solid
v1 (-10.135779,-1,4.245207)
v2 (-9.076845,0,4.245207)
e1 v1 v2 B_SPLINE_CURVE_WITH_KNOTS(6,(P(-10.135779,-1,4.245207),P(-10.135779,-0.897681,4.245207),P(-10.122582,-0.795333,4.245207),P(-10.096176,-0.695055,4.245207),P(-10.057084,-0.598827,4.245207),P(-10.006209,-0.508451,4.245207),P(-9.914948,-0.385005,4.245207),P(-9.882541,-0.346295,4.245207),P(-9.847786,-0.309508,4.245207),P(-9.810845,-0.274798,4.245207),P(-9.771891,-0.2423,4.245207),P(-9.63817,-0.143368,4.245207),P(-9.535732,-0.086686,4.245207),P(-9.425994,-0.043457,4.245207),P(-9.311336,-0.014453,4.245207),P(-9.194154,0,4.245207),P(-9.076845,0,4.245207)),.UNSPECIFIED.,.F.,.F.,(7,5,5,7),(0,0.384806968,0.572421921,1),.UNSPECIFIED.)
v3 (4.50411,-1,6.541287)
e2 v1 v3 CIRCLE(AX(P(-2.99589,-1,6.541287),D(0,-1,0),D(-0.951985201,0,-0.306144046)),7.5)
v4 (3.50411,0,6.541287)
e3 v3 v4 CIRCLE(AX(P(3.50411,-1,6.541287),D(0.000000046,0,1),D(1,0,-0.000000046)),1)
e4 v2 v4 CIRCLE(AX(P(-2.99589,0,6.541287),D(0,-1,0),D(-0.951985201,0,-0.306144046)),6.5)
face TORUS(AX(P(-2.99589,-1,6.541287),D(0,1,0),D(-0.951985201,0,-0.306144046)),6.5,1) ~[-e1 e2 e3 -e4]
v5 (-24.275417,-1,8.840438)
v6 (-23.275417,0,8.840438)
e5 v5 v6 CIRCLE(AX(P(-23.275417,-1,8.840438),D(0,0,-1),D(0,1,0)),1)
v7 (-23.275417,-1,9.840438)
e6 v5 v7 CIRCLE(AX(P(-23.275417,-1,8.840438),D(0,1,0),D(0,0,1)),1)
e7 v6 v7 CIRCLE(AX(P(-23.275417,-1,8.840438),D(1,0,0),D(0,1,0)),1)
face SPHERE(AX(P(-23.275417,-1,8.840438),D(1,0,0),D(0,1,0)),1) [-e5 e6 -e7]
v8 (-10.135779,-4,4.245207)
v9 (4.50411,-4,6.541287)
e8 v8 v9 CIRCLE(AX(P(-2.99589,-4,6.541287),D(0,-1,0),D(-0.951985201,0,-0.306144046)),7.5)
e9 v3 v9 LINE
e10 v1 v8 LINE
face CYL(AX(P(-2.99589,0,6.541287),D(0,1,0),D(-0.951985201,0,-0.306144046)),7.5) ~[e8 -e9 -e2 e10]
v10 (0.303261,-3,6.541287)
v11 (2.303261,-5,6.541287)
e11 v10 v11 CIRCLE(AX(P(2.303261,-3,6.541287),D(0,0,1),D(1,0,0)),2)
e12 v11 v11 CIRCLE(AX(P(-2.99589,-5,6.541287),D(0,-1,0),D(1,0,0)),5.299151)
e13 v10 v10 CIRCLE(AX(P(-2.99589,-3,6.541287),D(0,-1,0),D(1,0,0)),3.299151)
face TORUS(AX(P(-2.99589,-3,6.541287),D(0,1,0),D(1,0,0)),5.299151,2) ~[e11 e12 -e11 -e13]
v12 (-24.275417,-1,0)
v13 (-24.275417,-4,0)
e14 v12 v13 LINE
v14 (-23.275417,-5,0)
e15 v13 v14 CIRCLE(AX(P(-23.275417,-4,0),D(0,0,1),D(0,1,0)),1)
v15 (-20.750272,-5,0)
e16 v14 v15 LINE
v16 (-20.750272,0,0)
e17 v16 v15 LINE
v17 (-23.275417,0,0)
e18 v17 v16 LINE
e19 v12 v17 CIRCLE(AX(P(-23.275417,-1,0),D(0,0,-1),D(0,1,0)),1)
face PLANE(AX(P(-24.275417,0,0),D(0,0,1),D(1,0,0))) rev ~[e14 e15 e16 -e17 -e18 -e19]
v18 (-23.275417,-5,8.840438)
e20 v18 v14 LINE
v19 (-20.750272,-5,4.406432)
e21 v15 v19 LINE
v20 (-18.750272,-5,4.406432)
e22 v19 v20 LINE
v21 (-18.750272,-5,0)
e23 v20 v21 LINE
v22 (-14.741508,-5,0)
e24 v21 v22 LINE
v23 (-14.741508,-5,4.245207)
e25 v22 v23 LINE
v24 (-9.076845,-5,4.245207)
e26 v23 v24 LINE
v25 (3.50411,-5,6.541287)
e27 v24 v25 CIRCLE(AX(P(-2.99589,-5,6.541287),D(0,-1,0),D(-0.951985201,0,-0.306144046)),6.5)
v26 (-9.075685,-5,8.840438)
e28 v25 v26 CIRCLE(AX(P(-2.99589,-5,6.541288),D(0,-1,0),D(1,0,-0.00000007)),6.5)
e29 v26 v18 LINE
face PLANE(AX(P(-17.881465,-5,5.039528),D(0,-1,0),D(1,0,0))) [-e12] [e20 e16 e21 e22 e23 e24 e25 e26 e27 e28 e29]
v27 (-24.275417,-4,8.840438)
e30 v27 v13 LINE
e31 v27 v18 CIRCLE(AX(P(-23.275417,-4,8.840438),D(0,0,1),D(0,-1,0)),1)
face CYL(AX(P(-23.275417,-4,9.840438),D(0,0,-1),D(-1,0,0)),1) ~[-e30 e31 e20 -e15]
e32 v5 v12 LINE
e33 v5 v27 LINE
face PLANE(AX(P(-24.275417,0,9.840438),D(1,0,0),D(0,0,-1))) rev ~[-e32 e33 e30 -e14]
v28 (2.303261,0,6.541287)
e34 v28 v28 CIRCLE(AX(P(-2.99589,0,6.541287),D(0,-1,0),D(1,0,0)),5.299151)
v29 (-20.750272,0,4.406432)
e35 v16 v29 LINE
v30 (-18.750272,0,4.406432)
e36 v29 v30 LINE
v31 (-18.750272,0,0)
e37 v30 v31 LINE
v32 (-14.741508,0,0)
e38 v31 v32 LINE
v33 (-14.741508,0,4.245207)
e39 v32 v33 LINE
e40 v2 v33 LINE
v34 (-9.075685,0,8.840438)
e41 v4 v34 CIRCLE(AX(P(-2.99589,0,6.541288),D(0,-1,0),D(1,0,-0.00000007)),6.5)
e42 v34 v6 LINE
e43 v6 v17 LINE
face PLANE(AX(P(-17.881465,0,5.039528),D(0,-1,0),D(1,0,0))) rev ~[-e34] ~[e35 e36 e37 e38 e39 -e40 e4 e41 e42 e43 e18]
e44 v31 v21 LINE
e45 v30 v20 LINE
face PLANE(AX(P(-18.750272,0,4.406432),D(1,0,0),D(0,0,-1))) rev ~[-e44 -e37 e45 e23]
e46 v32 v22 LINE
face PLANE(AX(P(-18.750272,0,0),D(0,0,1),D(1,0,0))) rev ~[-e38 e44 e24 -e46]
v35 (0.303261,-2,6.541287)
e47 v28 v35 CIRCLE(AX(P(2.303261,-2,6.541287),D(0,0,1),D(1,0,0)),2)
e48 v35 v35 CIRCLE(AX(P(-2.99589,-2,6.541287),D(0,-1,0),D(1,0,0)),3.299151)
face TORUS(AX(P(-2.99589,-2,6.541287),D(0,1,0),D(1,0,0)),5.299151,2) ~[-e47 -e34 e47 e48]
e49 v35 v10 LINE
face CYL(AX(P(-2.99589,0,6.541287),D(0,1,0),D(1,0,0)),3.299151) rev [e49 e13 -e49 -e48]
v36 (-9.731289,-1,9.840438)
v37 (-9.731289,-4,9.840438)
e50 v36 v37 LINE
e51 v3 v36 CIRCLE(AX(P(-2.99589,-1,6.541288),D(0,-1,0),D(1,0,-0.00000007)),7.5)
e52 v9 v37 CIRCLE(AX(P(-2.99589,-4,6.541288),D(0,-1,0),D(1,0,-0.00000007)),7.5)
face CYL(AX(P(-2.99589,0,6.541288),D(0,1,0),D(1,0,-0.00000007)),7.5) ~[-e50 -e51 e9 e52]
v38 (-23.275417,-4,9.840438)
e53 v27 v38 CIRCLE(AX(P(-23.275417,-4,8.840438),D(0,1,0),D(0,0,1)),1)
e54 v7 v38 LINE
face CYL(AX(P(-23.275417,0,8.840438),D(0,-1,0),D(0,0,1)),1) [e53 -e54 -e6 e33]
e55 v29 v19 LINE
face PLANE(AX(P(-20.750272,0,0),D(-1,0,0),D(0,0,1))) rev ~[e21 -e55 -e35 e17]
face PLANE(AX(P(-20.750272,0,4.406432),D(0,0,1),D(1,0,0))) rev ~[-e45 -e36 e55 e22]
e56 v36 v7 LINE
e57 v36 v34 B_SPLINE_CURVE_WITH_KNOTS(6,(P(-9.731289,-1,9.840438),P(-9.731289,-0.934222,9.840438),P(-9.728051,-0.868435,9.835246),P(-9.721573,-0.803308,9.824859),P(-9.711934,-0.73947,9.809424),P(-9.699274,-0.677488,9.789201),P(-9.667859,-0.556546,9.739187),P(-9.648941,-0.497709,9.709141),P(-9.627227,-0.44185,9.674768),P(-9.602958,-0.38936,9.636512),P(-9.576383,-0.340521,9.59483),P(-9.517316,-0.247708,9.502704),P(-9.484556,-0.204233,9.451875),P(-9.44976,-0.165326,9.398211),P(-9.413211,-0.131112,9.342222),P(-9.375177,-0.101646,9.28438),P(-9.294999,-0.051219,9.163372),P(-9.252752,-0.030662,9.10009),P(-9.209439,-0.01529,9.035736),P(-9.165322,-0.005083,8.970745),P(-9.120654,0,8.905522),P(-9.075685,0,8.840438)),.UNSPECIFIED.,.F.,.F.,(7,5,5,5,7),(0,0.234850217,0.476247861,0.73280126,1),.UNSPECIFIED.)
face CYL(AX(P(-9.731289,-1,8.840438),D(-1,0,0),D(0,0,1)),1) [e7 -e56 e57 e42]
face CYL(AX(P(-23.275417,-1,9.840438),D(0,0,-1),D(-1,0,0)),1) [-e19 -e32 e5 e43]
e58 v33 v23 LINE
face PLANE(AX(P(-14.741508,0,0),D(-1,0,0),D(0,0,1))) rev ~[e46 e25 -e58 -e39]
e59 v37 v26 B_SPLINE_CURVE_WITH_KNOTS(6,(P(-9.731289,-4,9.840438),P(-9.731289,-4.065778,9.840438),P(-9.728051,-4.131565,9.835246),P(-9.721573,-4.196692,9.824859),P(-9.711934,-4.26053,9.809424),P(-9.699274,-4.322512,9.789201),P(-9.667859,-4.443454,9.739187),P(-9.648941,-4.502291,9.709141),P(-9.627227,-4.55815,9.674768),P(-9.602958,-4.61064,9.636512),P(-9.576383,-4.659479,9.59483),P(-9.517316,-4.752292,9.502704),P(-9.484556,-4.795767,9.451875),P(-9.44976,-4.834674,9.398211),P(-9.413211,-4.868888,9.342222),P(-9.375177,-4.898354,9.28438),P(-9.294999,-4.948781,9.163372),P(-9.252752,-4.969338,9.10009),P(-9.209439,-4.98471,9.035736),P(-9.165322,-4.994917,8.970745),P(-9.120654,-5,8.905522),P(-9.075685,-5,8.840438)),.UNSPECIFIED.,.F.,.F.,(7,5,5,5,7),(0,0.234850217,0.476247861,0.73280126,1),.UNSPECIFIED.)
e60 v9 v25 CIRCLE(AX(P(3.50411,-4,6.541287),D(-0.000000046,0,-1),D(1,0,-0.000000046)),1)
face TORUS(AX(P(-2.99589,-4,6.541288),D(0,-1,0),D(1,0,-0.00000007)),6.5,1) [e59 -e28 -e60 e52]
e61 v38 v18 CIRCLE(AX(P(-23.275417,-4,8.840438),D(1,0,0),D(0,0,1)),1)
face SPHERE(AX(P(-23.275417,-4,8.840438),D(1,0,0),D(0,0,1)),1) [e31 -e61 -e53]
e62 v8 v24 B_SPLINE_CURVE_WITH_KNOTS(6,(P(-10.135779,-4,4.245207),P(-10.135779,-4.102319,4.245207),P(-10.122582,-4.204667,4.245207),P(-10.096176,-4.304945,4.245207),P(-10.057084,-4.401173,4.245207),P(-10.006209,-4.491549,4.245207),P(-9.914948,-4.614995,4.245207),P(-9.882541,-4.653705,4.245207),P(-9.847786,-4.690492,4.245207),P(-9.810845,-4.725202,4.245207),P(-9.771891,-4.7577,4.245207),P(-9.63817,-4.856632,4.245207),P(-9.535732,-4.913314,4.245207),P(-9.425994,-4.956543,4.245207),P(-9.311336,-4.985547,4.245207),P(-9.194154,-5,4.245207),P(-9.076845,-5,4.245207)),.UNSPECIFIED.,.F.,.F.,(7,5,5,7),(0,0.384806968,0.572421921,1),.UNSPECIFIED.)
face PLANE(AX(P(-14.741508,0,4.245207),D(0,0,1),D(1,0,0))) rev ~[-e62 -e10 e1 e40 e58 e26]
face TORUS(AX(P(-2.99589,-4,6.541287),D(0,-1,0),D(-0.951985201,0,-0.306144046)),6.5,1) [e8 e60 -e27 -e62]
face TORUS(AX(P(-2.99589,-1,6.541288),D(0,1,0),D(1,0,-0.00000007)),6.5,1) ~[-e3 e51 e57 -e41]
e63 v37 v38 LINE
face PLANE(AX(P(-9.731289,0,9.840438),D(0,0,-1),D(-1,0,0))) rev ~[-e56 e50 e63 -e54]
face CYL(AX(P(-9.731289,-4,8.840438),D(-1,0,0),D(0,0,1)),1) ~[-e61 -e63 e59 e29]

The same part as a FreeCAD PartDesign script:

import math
import FreeCAD as App
import Part
import Sketcher
from FreeCAD import Vector
Q = App.Units.Quantity


def edges_at(feature, points):
    """Names of the edges that pass closest to the given points."""
    edges = feature.Shape.Edges
    near = lambda p: min(range(len(edges)), key=lambda i: edges[i].distToShape(Part.Vertex(*p))[0])
    return sorted({f"Edge{near(p) + 1}" for p in points})

doc = App.newDocument("Part")
body = doc.addObject("PartDesign::Body", "Body")

# Sketch on XZ plane
sketch1 = body.newObject("Sketcher::SketchObject", "Sketch")
sketch1.AttachmentSupport = (doc.getObject("XZ_Plane"), [""])
sketch1.MapMode = "FlatFace"
sketch1.addGeometry(Part.LineSegment(Vector(-9.7, 9.8, 0), Vector(-24.3, 9.8, 0)), False)
sketch1.addGeometry(Part.LineSegment(Vector(-24.3, 9.8, 0), Vector(-24.3, 0, 0)), False)
sketch1.addGeometry(Part.LineSegment(Vector(-24.3, 0, 0), Vector(-20.8, 0, 0)), False)
sketch1.addGeometry(Part.LineSegment(Vector(-20.8, 0, 0), Vector(-20.8, 4.4, 0)), False)
sketch1.addGeometry(Part.LineSegment(Vector(-20.8, 4.4, 0), Vector(-18.8, 4.4, 0)), False)
sketch1.addGeometry(Part.LineSegment(Vector(-18.8, 4.4, 0), Vector(-18.8, 0, 0)), False)
sketch1.addGeometry(Part.LineSegment(Vector(-18.8, 0, 0), Vector(-14.7, 0, 0)), False)
sketch1.addGeometry(Part.LineSegment(Vector(-14.7, 0, 0), Vector(-14.7, 4.2, 0)), False)
sketch1.addGeometry(Part.LineSegment(Vector(-14.7, 4.2, 0), Vector(-10.1, 4.2, 0)), False)
sketch1.addGeometry(Part.ArcOfCircle(Part.Circle(Vector(-3, 6.5, 0), Vector(0, 0, 1), 7.5), math.radians(-162), math.radians(0)), False)
sketch1.addGeometry(Part.ArcOfCircle(Part.Circle(Vector(-3, 6.5, 0), Vector(0, 0, 1), 7.5), math.radians(0), math.radians(154)), False)
sketch1.addGeometry(Part.Circle(Vector(-3, 6.5, 0), Vector(0, 0, 1), 3.3), False)
sketch1.addConstraint(Sketcher.Constraint("Coincident", 0, 2, 1, 1))
sketch1.addConstraint(Sketcher.Constraint("Coincident", 1, 2, 2, 1))
sketch1.addConstraint(Sketcher.Constraint("Coincident", 2, 2, 3, 1))
sketch1.addConstraint(Sketcher.Constraint("Coincident", 3, 2, 4, 1))
sketch1.addConstraint(Sketcher.Constraint("Coincident", 4, 2, 5, 1))
sketch1.addConstraint(Sketcher.Constraint("Coincident", 5, 2, 6, 1))
sketch1.addConstraint(Sketcher.Constraint("Coincident", 6, 2, 7, 1))
sketch1.addConstraint(Sketcher.Constraint("Coincident", 7, 2, 8, 1))
sketch1.addConstraint(Sketcher.Constraint("Coincident", 8, 2, 9, 1))
sketch1.addConstraint(Sketcher.Constraint("Tangent", 9, 2, 10, 1))
sketch1.addConstraint(Sketcher.Constraint("Coincident", 10, 2, 0, 1))
sketch1.addConstraint(Sketcher.Constraint("Horizontal", 0))
sketch1.addConstraint(Sketcher.Constraint("Vertical", 1))
sketch1.addConstraint(Sketcher.Constraint("Horizontal", 2))
sketch1.addConstraint(Sketcher.Constraint("Vertical", 3))
sketch1.addConstraint(Sketcher.Constraint("Horizontal", 4))
sketch1.addConstraint(Sketcher.Constraint("Vertical", 5))
sketch1.addConstraint(Sketcher.Constraint("Horizontal", 6))
sketch1.addConstraint(Sketcher.Constraint("Vertical", 7))
sketch1.addConstraint(Sketcher.Constraint("Horizontal", 8))
sketch1.addConstraint(Sketcher.Constraint("Coincident", 11, 3, 9, 3))
sketch1.addConstraint(Sketcher.Constraint("Equal", 9, 10))
sketch1.addConstraint(Sketcher.Constraint("PointOnObject", 1, 2, -1))
sketch1.addConstraint(Sketcher.Constraint("PointOnObject", 5, 2, -1))
sketch1.addConstraint(Sketcher.Constraint("Horizontal", 11, 3, 9, 2))
sketch1.addConstraint(Sketcher.Constraint("Radius", 9, Q("7.5 mm")))
sketch1.addConstraint(Sketcher.Constraint("DistanceX", 4, 1, 4, 2, Q("2 mm")))
sketch1.addConstraint(Sketcher.Constraint("Diameter", 11, Q("6.598302 mm")))
sketch1.addConstraint(Sketcher.Constraint("DistanceX", 0, 2, 0, 1, Q("14.544128 mm")))
sketch1.addConstraint(Sketcher.Constraint("DistanceX", 8, 1, 8, 2, Q("4.605729 mm")))
sketch1.addConstraint(Sketcher.Constraint("DistanceY", 1, 2, 1, 1, Q("9.840438 mm")))
sketch1.addConstraint(Sketcher.Constraint("DistanceY", 3, 1, 3, 2, Q("4.406432 mm")))
sketch1.addConstraint(Sketcher.Constraint("DistanceX", 10, 2, 9, 3, Q("6.735399 mm")))
sketch1.addConstraint(Sketcher.Constraint("DistanceX", 2, 1, 2, 2, Q("3.525145 mm")))
sketch1.addConstraint(Sketcher.Constraint("DistanceX", 6, 1, 6, 2, Q("4.008764 mm")))
sketch1.addConstraint(Sketcher.Constraint("DistanceX", 9, 3, -1, 1, Q("2.99589 mm")))
pad1 = body.newObject("PartDesign::Pad", "Pad")
pad1.Profile = sketch1
pad1.Length = 5
doc.recompute()

fillet = body.newObject("PartDesign::Fillet", "Fillet")
fillet.Base = (pad1, edges_at(pad1, [
    (-17.003, -5, 9.84),
    (-17.003, 0, 9.84),
    (-24.275, 0, 4.92),
    (-24.275, -2.5, 9.84),
    (-24.275, -5, 4.92),
    (-1.834, -5, -0.868),
    (-1.303, -5, 13.848),
    (-1.834, 0, -0.868),
    (-1.303, 0, 13.848),
]))
fillet.Radius = 1
doc.recompute()

fillet2 = body.newObject("PartDesign::Fillet", "Fillet001")
fillet2.Base = (fillet, edges_at(fillet, [(-6.295, 0, 6.541)]))
fillet2.Radius = 2
doc.recompute()

fillet3 = body.newObject("PartDesign::Fillet", "Fillet002")
fillet3.Base = (fillet2, edges_at(fillet2, [(-6.295, -5, 6.541)]))
fillet3.Radius = 2

doc.recompute()
